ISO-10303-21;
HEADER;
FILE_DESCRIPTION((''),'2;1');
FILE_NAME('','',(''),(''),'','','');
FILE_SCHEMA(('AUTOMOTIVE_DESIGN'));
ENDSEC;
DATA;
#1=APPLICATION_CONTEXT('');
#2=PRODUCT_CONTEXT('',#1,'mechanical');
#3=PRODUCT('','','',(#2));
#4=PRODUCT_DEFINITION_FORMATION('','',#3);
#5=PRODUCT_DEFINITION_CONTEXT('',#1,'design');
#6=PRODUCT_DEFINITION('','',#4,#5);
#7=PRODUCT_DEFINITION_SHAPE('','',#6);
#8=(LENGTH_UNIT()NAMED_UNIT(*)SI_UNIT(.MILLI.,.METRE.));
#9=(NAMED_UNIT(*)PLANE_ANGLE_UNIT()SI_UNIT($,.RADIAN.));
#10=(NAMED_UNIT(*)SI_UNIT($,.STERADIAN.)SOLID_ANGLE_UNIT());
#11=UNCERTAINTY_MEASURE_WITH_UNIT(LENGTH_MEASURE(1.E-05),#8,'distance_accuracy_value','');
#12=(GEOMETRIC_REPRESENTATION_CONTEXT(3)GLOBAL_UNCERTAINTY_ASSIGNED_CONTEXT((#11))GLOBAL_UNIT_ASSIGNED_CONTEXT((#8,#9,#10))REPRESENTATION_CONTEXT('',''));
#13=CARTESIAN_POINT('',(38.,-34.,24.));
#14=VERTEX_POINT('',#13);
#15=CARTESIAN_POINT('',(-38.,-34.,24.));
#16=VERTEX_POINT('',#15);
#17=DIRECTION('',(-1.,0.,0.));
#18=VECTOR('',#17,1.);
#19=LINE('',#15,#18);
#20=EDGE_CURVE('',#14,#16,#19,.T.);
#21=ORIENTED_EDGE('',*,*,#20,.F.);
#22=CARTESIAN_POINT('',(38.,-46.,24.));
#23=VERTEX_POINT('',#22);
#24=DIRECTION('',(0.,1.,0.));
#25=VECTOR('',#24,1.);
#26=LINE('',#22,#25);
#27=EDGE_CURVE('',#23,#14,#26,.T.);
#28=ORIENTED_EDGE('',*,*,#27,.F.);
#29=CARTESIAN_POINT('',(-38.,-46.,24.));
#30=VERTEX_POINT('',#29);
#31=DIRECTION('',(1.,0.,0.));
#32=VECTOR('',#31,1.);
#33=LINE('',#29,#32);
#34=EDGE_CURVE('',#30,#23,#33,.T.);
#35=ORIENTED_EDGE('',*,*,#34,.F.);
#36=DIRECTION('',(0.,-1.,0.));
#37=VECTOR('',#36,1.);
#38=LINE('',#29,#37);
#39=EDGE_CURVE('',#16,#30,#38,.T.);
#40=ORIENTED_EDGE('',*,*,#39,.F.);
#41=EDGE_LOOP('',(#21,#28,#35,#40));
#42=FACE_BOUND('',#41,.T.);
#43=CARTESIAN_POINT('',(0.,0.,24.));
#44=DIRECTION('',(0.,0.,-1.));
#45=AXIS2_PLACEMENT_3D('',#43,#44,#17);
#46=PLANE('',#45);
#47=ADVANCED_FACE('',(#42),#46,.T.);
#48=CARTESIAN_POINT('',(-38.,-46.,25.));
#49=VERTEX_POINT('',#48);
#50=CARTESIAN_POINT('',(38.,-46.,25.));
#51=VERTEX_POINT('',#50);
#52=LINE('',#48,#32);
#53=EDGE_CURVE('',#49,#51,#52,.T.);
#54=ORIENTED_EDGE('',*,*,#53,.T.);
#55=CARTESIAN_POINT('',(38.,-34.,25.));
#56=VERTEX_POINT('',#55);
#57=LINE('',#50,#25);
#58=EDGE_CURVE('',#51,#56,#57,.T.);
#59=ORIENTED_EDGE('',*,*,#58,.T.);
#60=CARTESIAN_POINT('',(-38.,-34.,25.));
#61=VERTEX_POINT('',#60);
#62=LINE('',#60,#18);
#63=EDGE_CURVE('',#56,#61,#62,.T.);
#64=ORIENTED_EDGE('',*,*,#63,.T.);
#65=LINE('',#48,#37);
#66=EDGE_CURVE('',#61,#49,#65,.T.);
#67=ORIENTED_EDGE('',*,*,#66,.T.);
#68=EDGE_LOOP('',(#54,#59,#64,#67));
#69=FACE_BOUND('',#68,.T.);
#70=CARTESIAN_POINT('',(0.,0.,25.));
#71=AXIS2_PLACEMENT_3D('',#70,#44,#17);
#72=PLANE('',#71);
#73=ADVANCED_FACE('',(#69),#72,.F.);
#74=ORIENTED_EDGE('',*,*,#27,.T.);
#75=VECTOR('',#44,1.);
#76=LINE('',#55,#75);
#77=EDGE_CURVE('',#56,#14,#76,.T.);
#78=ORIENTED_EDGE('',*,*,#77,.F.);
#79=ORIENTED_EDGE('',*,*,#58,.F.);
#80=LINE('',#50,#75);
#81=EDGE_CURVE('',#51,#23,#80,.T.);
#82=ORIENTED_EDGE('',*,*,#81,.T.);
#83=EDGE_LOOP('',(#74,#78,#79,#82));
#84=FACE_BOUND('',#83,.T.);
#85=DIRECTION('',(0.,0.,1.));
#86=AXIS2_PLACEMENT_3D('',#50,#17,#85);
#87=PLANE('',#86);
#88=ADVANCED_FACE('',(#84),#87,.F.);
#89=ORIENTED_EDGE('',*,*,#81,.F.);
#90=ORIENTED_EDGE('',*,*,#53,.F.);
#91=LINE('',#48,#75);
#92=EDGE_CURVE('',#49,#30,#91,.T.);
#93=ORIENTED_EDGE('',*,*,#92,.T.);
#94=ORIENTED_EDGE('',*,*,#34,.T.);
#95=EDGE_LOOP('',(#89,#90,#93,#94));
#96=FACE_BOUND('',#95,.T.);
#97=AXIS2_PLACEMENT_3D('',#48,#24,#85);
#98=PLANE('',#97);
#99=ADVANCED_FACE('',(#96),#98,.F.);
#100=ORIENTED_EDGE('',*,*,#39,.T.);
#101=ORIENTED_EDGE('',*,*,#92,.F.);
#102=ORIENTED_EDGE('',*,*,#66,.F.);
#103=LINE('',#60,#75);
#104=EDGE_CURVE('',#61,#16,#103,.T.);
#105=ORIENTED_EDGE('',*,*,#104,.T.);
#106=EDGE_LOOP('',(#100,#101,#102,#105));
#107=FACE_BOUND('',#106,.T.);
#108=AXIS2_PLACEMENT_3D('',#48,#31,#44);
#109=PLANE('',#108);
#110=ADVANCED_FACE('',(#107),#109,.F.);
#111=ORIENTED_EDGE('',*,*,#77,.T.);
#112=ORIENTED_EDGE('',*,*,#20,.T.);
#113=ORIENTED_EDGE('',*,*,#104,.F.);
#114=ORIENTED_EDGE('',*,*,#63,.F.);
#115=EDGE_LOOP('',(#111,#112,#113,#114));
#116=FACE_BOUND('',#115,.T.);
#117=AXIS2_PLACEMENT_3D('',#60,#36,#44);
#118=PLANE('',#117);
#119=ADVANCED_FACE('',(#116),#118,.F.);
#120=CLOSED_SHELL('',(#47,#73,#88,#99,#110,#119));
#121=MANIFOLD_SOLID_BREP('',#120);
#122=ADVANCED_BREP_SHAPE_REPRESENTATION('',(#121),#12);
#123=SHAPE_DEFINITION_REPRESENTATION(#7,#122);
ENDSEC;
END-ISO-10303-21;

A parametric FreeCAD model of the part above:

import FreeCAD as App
import Part
import Sketcher
Q = App.Units.Quantity

doc = App.newDocument("Part")
body = doc.addObject("PartDesign::Body", "Body")

# Sketch on XY plane
sketch1 = doc.addObject("Sketcher::SketchObject", "Sketch")
body.addObject(sketch1)
sketch1.AttachmentSupport = (doc.XY_Plane, [""])
sketch1.MapMode = "FlatFace"
sketch1.AttachmentOffset = App.Placement(App.Vector(0, 0, 24), App.Rotation())
sketch1.addGeometry([
    Part.LineSegment(App.Vector(-38, -34, 0), App.Vector(-38, -46, 0)),
    Part.LineSegment(App.Vector(-38, -46, 0), App.Vector(38, -46, 0)),
    Part.LineSegment(App.Vector(38, -46, 0), App.Vector(38, -34, 0)),
    Part.LineSegment(App.Vector(38, -34, 0), App.Vector(-38, -34, 0)),
], False)
sketch1.addConstraint([
    Sketcher.Constraint("Coincident", 0, 2, 1, 1),
    Sketcher.Constraint("Coincident", 1, 2, 2, 1),
    Sketcher.Constraint("Coincident", 2, 2, 3, 1),
    Sketcher.Constraint("Coincident", 3, 2, 0, 1),
    Sketcher.Constraint("Vertical", 0),
    Sketcher.Constraint("Horizontal", 1),
    Sketcher.Constraint("Vertical", 2),
    Sketcher.Constraint("Horizontal", 3),
    Sketcher.Constraint("DistanceX", 1, 1, 1, 2, Q("76 mm")),
    Sketcher.Constraint("DistanceY", 0, 2, 0, 1, Q("12 mm")),
    Sketcher.Constraint("DistanceX", 0, 2, -1, 1, Q("38 mm")),
    Sketcher.Constraint("DistanceY", 0, 2, -1, 1, Q("46 mm")),
])
pad1 = doc.addObject("PartDesign::Pad", "Pad")
body.addObject(pad1)
pad1.Profile = sketch1
pad1.Length = 1

doc.recompute()
